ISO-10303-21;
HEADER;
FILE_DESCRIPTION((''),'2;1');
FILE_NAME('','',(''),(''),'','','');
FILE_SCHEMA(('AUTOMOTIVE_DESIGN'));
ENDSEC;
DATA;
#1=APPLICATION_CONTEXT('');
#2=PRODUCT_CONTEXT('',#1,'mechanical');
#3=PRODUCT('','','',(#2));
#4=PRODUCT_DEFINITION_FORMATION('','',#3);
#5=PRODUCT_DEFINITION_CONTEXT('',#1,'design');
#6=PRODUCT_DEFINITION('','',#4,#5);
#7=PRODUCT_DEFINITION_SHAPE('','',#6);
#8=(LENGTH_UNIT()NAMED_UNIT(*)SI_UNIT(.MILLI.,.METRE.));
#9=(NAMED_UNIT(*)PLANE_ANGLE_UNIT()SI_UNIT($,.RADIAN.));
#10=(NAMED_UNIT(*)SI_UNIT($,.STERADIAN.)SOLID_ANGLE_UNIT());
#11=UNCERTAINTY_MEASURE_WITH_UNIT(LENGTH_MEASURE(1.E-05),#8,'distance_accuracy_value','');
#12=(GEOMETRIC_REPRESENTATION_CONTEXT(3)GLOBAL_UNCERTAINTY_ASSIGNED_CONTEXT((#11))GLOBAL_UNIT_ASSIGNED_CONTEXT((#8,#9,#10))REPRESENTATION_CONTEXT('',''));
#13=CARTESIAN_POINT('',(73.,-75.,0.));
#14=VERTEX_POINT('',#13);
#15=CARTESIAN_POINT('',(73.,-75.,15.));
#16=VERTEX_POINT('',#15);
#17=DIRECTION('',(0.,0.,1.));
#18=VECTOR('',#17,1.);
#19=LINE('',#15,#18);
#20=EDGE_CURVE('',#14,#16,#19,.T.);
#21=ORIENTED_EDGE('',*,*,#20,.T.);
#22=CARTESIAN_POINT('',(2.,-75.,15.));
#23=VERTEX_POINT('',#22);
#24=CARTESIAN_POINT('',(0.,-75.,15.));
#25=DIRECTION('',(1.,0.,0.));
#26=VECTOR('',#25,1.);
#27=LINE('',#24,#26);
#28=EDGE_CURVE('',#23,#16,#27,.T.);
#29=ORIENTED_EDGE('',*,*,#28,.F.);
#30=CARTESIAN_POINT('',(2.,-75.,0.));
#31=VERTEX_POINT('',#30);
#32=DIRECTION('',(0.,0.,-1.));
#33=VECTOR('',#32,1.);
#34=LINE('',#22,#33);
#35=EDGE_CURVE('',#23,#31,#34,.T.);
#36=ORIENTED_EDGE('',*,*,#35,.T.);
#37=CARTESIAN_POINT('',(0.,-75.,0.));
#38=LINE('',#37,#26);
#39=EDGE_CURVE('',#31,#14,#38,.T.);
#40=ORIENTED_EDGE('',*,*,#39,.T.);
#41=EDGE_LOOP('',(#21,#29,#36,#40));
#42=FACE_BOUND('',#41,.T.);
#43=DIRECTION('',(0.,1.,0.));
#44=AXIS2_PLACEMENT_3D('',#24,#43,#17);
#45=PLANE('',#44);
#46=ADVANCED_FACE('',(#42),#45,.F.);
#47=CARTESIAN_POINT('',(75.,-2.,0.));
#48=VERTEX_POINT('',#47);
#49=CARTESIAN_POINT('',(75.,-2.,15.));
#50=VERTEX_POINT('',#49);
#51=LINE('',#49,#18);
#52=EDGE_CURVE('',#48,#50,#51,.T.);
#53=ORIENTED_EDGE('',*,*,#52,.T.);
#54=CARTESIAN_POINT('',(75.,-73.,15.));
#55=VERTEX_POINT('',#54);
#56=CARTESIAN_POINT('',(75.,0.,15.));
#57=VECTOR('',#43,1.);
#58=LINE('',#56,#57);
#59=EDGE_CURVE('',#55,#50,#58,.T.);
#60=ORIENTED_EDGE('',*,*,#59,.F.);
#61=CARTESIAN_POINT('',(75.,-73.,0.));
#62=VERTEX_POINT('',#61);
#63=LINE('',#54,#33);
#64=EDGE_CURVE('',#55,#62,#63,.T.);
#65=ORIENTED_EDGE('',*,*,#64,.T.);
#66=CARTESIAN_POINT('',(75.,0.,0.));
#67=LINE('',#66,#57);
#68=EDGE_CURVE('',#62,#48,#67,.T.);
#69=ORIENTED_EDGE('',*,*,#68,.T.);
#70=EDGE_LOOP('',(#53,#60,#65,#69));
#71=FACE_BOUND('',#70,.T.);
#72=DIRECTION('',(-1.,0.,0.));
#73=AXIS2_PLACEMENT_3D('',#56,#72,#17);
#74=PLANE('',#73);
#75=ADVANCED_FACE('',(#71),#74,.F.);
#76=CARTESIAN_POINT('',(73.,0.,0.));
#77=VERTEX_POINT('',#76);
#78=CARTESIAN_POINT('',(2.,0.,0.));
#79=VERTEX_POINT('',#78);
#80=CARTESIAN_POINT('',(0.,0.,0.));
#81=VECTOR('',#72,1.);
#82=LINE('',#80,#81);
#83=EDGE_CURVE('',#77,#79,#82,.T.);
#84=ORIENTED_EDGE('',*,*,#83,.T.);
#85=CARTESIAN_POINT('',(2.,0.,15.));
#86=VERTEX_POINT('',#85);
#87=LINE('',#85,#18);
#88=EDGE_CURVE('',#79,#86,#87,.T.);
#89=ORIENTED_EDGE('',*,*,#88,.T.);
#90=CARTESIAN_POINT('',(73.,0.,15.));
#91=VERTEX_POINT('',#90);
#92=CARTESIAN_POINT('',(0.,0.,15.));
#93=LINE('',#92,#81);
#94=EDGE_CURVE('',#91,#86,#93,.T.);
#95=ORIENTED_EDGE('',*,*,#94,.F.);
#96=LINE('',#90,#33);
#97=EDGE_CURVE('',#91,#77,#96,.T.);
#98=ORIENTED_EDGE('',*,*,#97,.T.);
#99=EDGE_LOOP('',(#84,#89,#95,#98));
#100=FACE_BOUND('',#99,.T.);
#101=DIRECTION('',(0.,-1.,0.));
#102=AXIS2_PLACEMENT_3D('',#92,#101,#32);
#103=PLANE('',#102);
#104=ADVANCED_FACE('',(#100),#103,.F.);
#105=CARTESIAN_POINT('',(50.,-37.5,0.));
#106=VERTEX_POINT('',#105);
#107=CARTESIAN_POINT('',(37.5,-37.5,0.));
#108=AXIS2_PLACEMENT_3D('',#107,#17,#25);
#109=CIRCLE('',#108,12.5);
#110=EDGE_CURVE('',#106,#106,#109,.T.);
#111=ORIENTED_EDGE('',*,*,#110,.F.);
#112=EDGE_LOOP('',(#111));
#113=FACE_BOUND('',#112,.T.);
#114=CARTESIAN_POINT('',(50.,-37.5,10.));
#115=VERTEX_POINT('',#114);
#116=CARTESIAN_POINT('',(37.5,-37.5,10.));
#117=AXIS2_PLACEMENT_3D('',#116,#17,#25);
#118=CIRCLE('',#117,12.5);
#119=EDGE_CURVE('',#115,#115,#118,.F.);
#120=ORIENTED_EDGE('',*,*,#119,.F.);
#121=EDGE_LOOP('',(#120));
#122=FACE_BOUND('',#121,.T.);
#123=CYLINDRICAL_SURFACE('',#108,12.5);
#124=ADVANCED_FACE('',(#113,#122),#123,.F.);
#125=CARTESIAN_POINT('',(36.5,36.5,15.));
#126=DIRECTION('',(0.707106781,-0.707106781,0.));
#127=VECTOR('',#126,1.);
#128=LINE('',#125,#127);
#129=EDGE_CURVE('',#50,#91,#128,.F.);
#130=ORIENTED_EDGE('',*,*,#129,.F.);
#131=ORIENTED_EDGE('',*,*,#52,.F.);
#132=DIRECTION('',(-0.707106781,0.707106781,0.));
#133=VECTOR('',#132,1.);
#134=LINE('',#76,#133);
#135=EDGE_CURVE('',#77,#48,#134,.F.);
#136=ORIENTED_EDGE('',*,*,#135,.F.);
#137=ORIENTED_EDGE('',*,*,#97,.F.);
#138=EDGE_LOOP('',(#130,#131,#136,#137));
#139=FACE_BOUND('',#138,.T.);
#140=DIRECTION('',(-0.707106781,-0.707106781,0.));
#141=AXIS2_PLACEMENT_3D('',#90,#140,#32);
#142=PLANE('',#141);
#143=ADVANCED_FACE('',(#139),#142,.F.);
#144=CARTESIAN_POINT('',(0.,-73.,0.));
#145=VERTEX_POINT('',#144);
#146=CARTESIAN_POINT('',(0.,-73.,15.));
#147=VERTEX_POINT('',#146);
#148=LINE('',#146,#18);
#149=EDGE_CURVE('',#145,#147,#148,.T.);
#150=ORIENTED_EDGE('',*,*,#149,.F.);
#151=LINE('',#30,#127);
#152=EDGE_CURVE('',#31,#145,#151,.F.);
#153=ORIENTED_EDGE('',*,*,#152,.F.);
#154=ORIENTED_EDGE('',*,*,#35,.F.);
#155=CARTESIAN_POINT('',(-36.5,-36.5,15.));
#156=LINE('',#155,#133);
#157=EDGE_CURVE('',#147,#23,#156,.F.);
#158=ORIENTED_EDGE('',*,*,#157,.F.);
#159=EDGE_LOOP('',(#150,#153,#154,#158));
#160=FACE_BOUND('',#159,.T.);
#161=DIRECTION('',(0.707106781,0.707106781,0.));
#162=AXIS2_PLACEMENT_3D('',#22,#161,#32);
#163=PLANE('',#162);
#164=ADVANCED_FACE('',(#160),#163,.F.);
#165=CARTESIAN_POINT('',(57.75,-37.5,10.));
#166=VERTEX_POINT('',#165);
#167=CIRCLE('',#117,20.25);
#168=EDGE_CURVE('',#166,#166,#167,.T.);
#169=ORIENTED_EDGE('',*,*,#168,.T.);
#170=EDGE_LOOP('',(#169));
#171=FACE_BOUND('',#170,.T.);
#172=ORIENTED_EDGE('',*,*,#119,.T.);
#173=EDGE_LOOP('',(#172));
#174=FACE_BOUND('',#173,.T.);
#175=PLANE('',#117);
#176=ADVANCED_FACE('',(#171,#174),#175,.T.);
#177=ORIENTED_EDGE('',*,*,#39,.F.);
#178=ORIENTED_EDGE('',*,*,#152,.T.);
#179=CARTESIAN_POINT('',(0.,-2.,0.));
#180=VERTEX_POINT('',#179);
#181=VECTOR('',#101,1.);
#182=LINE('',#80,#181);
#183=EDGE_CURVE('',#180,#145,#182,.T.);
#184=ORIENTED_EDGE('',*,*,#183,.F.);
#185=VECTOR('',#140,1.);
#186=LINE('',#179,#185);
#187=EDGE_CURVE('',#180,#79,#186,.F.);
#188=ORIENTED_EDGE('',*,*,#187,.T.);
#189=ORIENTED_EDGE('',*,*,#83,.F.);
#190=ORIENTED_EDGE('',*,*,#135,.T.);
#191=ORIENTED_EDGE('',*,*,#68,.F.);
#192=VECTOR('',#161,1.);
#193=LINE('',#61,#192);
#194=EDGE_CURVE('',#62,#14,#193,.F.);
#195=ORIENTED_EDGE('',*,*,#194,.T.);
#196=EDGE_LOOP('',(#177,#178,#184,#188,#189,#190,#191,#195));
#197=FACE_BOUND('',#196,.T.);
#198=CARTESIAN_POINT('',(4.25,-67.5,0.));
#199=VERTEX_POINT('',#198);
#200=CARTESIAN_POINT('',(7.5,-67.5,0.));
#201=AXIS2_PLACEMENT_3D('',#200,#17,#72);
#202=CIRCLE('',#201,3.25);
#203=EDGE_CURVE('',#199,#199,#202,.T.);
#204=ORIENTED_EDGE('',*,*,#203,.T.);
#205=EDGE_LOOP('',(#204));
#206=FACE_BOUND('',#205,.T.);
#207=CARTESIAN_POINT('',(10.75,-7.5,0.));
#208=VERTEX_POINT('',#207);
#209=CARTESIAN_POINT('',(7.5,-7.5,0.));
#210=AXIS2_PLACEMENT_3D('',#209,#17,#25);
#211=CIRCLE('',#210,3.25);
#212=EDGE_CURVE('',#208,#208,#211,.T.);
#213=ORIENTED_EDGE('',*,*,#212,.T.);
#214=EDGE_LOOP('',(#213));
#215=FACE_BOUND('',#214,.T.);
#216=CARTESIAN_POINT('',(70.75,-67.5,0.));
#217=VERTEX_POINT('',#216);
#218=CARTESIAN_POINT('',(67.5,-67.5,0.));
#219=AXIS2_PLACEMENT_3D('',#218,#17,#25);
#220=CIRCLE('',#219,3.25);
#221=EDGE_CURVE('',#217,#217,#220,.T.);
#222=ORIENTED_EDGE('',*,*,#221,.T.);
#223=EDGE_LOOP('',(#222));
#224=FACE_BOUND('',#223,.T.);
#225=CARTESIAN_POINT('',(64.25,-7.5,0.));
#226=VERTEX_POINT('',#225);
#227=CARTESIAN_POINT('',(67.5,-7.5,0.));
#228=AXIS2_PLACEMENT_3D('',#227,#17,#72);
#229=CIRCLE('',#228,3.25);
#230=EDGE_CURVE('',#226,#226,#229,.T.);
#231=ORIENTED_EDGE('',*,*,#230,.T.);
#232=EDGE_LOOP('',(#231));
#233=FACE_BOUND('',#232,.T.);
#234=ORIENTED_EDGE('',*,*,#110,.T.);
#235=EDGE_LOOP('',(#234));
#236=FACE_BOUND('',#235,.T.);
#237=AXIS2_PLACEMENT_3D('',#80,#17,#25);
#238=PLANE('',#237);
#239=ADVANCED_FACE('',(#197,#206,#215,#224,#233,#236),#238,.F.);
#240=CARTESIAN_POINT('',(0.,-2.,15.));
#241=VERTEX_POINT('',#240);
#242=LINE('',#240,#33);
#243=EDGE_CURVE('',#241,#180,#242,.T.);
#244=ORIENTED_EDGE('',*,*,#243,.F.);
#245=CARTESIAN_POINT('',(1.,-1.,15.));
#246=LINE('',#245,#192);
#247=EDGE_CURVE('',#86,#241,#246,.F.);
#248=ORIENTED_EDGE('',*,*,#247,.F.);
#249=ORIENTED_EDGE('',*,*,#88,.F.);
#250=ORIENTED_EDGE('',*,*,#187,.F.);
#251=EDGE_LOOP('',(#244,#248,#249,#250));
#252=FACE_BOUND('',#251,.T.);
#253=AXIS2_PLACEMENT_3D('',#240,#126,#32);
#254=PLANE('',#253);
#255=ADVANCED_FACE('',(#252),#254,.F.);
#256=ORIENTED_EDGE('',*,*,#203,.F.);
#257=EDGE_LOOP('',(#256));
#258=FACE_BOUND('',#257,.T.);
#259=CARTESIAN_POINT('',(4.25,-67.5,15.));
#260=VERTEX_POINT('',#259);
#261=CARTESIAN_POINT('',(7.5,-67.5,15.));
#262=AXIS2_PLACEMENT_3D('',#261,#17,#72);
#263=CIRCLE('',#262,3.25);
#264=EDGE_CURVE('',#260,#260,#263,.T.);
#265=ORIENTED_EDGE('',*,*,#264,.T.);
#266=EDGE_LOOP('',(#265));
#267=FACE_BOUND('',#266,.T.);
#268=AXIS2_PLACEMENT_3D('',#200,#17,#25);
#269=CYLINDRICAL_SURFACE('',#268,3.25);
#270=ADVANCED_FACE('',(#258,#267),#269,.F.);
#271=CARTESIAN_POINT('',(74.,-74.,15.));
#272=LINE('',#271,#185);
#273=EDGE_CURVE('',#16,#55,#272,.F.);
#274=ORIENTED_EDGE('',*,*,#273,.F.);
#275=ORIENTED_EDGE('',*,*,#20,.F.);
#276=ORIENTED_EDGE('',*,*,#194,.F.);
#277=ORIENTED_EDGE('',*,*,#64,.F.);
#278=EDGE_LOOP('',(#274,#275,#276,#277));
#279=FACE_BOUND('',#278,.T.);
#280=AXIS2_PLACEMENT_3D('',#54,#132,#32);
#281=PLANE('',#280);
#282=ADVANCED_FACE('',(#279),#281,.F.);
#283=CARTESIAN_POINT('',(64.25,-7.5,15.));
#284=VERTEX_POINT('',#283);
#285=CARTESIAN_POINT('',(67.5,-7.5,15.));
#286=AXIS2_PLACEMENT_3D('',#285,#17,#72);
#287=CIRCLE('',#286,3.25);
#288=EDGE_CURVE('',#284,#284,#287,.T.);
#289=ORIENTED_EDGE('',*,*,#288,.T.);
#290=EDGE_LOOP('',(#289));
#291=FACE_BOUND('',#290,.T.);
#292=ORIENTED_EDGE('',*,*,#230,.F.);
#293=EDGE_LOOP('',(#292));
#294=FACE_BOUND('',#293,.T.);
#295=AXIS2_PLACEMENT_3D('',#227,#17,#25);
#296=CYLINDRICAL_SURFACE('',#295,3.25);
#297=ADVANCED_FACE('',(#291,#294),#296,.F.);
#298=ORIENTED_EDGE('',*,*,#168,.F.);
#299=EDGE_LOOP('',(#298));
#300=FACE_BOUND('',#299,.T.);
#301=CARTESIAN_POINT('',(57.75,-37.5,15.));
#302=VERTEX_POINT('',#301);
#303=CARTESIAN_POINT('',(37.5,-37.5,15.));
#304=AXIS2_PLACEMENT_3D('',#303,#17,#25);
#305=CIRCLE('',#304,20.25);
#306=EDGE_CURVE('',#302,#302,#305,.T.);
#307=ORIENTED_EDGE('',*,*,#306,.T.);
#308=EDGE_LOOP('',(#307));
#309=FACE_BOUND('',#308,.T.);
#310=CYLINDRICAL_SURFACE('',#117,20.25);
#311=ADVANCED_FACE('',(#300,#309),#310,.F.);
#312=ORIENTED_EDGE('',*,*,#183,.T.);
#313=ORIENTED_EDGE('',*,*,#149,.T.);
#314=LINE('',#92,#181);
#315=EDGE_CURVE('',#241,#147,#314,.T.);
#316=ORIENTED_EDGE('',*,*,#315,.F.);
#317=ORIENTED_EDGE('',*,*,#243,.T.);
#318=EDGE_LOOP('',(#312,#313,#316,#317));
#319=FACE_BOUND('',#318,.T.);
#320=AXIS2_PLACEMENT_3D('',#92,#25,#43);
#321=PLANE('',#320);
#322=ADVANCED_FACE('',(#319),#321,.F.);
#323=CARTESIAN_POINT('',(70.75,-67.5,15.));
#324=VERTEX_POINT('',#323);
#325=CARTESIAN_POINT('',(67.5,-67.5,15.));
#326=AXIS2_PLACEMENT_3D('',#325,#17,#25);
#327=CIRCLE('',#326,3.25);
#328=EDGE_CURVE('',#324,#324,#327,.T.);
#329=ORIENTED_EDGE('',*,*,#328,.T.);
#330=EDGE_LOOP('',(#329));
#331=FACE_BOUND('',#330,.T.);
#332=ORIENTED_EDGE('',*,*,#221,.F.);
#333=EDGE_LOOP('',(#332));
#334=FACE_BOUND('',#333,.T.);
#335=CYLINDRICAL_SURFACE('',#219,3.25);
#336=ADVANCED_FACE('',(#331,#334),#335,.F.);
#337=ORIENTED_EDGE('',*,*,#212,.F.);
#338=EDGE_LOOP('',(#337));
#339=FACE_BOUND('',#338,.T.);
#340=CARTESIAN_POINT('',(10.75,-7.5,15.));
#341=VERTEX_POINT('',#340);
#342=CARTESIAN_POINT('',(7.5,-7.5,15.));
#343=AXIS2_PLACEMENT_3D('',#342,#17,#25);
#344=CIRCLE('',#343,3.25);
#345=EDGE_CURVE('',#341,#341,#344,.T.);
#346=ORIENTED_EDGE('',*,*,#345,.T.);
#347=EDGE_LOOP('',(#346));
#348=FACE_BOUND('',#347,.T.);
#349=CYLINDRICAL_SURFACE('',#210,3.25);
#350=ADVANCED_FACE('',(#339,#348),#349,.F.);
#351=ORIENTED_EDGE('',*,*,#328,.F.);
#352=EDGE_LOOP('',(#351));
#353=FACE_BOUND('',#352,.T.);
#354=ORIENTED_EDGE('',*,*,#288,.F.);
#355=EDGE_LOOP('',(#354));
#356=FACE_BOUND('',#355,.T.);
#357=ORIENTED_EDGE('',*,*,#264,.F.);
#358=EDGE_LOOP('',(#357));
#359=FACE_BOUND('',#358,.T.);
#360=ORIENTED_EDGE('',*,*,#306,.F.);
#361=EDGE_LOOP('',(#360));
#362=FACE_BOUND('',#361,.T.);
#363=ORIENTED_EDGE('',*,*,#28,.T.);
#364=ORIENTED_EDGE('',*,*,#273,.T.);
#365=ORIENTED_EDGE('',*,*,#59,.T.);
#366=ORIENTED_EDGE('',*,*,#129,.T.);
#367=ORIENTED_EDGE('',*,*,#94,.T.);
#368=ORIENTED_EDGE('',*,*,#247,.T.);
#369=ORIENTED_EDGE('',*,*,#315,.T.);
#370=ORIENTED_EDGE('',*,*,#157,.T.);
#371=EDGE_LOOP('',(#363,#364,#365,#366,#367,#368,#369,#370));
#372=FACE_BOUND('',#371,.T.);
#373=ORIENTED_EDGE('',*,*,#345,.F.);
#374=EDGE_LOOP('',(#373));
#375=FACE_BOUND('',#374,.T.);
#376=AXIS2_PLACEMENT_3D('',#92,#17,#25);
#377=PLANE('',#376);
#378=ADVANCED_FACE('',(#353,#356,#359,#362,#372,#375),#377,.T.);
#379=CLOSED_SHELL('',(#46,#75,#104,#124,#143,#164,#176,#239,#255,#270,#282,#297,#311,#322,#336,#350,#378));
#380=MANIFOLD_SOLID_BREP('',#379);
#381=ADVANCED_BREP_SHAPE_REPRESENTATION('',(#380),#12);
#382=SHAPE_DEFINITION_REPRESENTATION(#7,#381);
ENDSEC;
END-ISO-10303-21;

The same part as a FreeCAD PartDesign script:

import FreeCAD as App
import Part
import Sketcher
Q = App.Units.Quantity


def edges_at(feature, points):
    """Names of the edges that pass closest to the given points."""
    edges = feature.Shape.Edges
    near = lambda p: min(range(len(edges)), key=lambda i: edges[i].distToShape(Part.Vertex(*p))[0])
    return sorted({f"Edge{near(p) + 1}" for p in points})

doc = App.newDocument("Part")
body = doc.addObject("PartDesign::Body", "Body")

# Sketch on XY plane
sketch1 = body.newObject("Sketcher::SketchObject", "Sketch")
sketch1.AttachmentSupport = (doc.getObject("XY_Plane"), [""])
sketch1.MapMode = "FlatFace"
sketch1.addGeometry([
    Part.LineSegment(App.Vector(0, 0, 0), App.Vector(0, -75, 0)),
    Part.LineSegment(App.Vector(0, -75, 0), App.Vector(75, -75, 0)),
    Part.LineSegment(App.Vector(75, -75, 0), App.Vector(75, 0, 0)),
    Part.LineSegment(App.Vector(75, 0, 0), App.Vector(0, 0, 0)),
], False)
sketch1.addConstraint([
    Sketcher.Constraint("Coincident", 0, 2, 1, 1),
    Sketcher.Constraint("Coincident", 1, 2, 2, 1),
    Sketcher.Constraint("Coincident", 2, 2, 3, 1),
    Sketcher.Constraint("Coincident", 3, 2, 0, 1),
    Sketcher.Constraint("Vertical", 0),
    Sketcher.Constraint("Horizontal", 1),
    Sketcher.Constraint("Vertical", 2),
    Sketcher.Constraint("Horizontal", 3),
    Sketcher.Constraint("Coincident", 3, 2, -1, 1),
    Sketcher.Constraint("Equal", 3, 0),
    Sketcher.Constraint("DistanceX", 1, 1, 1, 2, Q("75 mm")),
])
pad1 = body.newObject("PartDesign::Pad", "Pad")
pad1.Profile = sketch1
pad1.Length = 15
doc.recompute()

chamfer = body.newObject("PartDesign::Chamfer", "Chamfer")
chamfer.Base = (pad1, edges_at(pad1, [
    (0, 0, 7.5),
    (75, 0, 7.5),
    (75, -75, 7.5),
    (0, -75, 7.5),
]))
chamfer.Size = 2

# Sketch on XY plane
sketch2 = body.newObject("Sketcher::SketchObject", "Sketch001")
sketch2.AttachmentSupport = (doc.getObject("XY_Plane"), [""])
sketch2.MapMode = "FlatFace"
sketch2.AttachmentOffset = App.Placement(App.Vector(0, 0, 15), App.Rotation())
sketch2.addGeometry([
    Part.Circle(App.Vector(37.5, -37.5, 0), App.Vector(0, 0, 1), 12.5),  # 0
    Part.Circle(App.Vector(7.5, -7.5, 0), App.Vector(0, 0, 1), 3.25),  # 1
    Part.Circle(App.Vector(67.5, -7.5, 0), App.Vector(0, 0, 1), 3.25),  # 2
    Part.Circle(App.Vector(67.5, -67.5, 0), App.Vector(0, 0, 1), 3.25),  # 3
    Part.Circle(App.Vector(7.5, -67.5, 0), App.Vector(0, 0, 1), 3.25),  # 4
], False)
sketch2.addConstraint([
    Sketcher.Constraint("Equal", 1, 2),
    Sketcher.Constraint("Equal", 2, 3),
    Sketcher.Constraint("Equal", 3, 4),
    Sketcher.Constraint("Horizontal", 1, 3, 2, 3),
    Sketcher.Constraint("Horizontal", 3, 3, 4, 3),
    Sketcher.Constraint("Vertical", 2, 3, 3, 3),
    Sketcher.Constraint("Vertical", 1, 3, 4, 3),
    Sketcher.Constraint("Diameter", 0, Q("25 mm")),
    Sketcher.Constraint("Diameter", 1, Q("6.5 mm")),
    Sketcher.Constraint("DistanceX", 1, 3, 0, 3, Q("30 mm")),
    Sketcher.Constraint("DistanceY", 0, 3, 1, 3, Q("30 mm")),
    Sketcher.Constraint("DistanceX", 0, 3, 2, 3, Q("30 mm")),
    Sketcher.Constraint("DistanceY", 3, 3, 0, 3, Q("30 mm")),
    Sketcher.Constraint("DistanceX", -1, 1, 0, 3, Q("37.5 mm")),
    Sketcher.Constraint("DistanceY", 0, 3, -1, 1, Q("37.5 mm")),
])
pocket1 = body.newObject("PartDesign::Pocket", "Pocket")
pocket1.Profile = sketch2
pocket1.Type = "ThroughAll"

# Sketch on XY plane
sketch3 = body.newObject("Sketcher::SketchObject", "Sketch002")
sketch3.AttachmentSupport = (doc.getObject("XY_Plane"), [""])
sketch3.MapMode = "FlatFace"
sketch3.AttachmentOffset = App.Placement(App.Vector(0, 0, 15), App.Rotation())
sketch3.addGeometry(Part.Circle(App.Vector(37.5, -37.5, 0), App.Vector(0, 0, 1), 20.25), False)
sketch3.addConstraint([
    Sketcher.Constraint("Diameter", 0, Q("40.5 mm")),
    Sketcher.Constraint("DistanceX", -1, 1, 0, 3, Q("37.5 mm")),
    Sketcher.Constraint("DistanceY", 0, 3, -1, 1, Q("37.5 mm")),
])
pocket2 = body.newObject("PartDesign::Pocket", "Pocket001")
pocket2.Profile = sketch3
pocket2.Length = 5

doc.recompute()
